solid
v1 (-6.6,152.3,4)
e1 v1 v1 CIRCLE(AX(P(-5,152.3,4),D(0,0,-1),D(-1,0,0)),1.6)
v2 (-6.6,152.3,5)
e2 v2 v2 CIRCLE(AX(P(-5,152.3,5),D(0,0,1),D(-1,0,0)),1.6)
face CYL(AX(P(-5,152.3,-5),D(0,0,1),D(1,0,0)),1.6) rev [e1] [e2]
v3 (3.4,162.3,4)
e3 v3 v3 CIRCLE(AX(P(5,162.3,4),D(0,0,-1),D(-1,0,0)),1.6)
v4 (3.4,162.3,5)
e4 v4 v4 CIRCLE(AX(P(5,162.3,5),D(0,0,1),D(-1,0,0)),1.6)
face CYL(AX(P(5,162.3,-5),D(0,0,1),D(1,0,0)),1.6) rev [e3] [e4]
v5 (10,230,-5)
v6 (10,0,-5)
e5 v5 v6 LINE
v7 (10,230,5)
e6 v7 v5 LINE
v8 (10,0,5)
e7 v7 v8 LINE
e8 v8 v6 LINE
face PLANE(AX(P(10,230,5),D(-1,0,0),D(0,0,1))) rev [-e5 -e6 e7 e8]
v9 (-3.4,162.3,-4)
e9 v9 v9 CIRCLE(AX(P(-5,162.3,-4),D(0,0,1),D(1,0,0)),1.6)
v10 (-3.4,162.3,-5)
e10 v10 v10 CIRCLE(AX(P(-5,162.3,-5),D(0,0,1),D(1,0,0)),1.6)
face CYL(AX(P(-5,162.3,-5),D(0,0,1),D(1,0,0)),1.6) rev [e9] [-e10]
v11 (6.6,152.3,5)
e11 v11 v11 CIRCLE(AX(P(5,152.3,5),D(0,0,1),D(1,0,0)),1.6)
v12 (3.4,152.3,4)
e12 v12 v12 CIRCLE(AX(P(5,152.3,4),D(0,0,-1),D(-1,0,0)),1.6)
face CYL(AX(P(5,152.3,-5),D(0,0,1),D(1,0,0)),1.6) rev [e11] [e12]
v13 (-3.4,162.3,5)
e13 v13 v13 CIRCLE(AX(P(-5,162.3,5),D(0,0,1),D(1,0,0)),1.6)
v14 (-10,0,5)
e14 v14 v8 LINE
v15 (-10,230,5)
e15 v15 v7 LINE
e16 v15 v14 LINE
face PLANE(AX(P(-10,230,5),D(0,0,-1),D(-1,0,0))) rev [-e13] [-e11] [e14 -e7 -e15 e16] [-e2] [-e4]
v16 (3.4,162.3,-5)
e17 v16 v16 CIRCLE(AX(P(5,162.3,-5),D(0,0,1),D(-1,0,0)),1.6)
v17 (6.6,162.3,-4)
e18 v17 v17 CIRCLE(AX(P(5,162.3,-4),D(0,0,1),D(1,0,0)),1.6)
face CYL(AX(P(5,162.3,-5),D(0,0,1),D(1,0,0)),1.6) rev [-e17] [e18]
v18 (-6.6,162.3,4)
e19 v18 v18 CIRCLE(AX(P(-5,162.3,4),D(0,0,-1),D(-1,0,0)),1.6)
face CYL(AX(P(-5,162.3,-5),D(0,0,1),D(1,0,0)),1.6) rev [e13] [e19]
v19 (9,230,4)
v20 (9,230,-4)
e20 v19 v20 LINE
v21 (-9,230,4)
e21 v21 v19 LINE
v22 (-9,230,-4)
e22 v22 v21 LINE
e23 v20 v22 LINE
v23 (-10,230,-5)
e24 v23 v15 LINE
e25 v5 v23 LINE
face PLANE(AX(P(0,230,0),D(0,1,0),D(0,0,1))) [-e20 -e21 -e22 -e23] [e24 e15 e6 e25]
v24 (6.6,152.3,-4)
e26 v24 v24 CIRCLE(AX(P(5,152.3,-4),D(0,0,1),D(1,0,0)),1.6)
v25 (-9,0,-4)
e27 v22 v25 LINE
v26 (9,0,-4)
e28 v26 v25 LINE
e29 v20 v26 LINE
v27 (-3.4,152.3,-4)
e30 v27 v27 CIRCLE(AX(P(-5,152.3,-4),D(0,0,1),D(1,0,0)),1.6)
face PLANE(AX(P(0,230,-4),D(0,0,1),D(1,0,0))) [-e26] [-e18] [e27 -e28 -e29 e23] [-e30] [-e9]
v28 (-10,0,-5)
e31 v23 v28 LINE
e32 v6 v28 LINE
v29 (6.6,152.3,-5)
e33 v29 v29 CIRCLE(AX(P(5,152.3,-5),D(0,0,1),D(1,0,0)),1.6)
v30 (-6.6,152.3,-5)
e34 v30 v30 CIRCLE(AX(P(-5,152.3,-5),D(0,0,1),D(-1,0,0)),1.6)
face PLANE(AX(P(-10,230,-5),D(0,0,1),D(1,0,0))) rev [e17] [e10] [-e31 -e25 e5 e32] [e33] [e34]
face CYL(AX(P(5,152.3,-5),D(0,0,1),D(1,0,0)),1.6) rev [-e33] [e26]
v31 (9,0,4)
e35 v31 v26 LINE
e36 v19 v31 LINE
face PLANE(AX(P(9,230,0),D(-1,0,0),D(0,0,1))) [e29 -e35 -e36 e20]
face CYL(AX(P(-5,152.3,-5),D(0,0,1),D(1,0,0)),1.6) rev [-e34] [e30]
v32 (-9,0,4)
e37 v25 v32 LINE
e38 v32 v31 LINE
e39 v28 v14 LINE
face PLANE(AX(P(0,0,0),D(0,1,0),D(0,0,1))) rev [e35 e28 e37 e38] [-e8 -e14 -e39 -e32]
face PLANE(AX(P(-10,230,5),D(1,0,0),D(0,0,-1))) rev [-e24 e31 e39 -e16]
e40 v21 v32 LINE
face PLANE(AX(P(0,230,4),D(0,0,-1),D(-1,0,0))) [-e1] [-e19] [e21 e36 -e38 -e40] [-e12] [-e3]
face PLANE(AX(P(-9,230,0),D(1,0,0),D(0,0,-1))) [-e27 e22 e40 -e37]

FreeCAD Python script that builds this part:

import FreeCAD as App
import Part
import Sketcher
Q = App.Units.Quantity


def add_polygon(sketch, points):
    """Adds a closed chain of lines whose ends are joined by coincident constraints."""
    first, n = sketch.GeometryCount, len(points)
    for a, b in zip(points, points[1:] + points[:1]):
        sketch.addGeometry(Part.LineSegment(App.Vector(*a, 0), App.Vector(*b, 0)), False)
    for i in range(n):
        sketch.addConstraint(Sketcher.Constraint("Coincident", first + i, 2, first + (i + 1) % n, 1))

doc = App.newDocument("Part")
body = doc.addObject("PartDesign::Body", "Body")

# Sketch on XZ plane
sketch1 = doc.addObject("Sketcher::SketchObject", "Sketch")
body.addObject(sketch1)
sketch1.AttachmentSupport = (doc.XZ_Plane, [""])
sketch1.MapMode = "FlatFace"
add_polygon(sketch1, [(-10, -5), (-10, 5), (10, 5), (10, -5)])  # lines 0-3
add_polygon(sketch1, [(9, 4), (-9, 4), (-9, -4), (9, -4)])  # lines 4-7
sketch1.addConstraint(Sketcher.Constraint("Vertical", 0))
sketch1.addConstraint(Sketcher.Constraint("Horizontal", 1))
sketch1.addConstraint(Sketcher.Constraint("Vertical", 2))
sketch1.addConstraint(Sketcher.Constraint("Horizontal", 3))
sketch1.addConstraint(Sketcher.Constraint("Horizontal", 4))
sketch1.addConstraint(Sketcher.Constraint("Vertical", 5))
sketch1.addConstraint(Sketcher.Constraint("Horizontal", 6))
sketch1.addConstraint(Sketcher.Constraint("Vertical", 7))
sketch1.addConstraint(Sketcher.Constraint("Symmetric", 0, 2, 2, 2, -1, 1))
sketch1.addConstraint(Sketcher.Constraint("Symmetric", 4, 2, 6, 2, -1, 1))
sketch1.addConstraint(Sketcher.Constraint("DistanceX", 1, 1, 1, 2, Q("20 mm")))
sketch1.addConstraint(Sketcher.Constraint("DistanceX", 4, 2, 4, 1, Q("18 mm")))
sketch1.addConstraint(Sketcher.Constraint("DistanceY", 0, 1, 0, 2, Q("10 mm")))
sketch1.addConstraint(Sketcher.Constraint("DistanceY", 5, 2, 5, 1, Q("8 mm")))
pad1 = doc.addObject("PartDesign::Pad", "Pad")
body.addObject(pad1)
pad1.Profile = sketch1
pad1.Length = 230
pad1.Reversed = True

# Sketch on XY plane
sketch2 = doc.addObject("Sketcher::SketchObject", "Sketch001")
body.addObject(sketch2)
sketch2.AttachmentSupport = (doc.XY_Plane, [""])
sketch2.MapMode = "FlatFace"
sketch2.AttachmentOffset = App.Placement(App.Vector(0, 0, 5), App.Rotation())
sketch2.addGeometry(Part.Circle(App.Vector(-5, 162.3, 0), App.Vector(0, 0, 1), 1.6), False)
sketch2.addGeometry(Part.Circle(App.Vector(-5, 152.3, 0), App.Vector(0, 0, 1), 1.6), False)
sketch2.addGeometry(Part.Circle(App.Vector(5, 152.3, 0), App.Vector(0, 0, 1), 1.6), False)
sketch2.addGeometry(Part.Circle(App.Vector(5, 162.3, 0), App.Vector(0, 0, 1), 1.6), False)
sketch2.addConstraint(Sketcher.Constraint("Equal", 0, 1))
sketch2.addConstraint(Sketcher.Constraint("Equal", 1, 2))
sketch2.addConstraint(Sketcher.Constraint("Equal", 2, 3))
sketch2.addConstraint(Sketcher.Constraint("Symmetric", 1, 3, 2, 3, -2))
sketch2.addConstraint(Sketcher.Constraint("Symmetric", 0, 3, 3, 3, -2))
sketch2.addConstraint(Sketcher.Constraint("Vertical", 0, 3, 1, 3))
sketch2.addConstraint(Sketcher.Constraint("Diameter", 0, Q("3.2 mm")))
sketch2.addConstraint(Sketcher.Constraint("DistanceX", 0, 3, -1, 1, Q("5 mm")))
sketch2.addConstraint(Sketcher.Constraint("DistanceY", 1, 3, 0, 3, Q("10 mm")))
sketch2.addConstraint(Sketcher.Constraint("DistanceY", -1, 1, 0, 3, Q("162.3 mm")))
pocket1 = doc.addObject("PartDesign::Pocket", "Pocket")
body.addObject(pocket1)
pocket1.Profile = sketch2
pocket1.Type = "ThroughAll"

doc.recompute()
